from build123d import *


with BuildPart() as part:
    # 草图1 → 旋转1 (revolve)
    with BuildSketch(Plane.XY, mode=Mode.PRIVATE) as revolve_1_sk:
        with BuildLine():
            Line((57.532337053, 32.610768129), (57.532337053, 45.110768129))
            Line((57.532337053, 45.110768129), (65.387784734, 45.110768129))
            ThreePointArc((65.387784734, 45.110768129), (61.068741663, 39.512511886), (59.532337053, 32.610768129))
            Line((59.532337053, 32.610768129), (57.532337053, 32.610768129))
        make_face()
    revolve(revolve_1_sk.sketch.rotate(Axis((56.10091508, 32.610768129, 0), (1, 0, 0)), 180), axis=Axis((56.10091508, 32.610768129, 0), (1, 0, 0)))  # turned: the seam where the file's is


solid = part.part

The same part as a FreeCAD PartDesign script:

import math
import FreeCAD as App
import Part
import Sketcher

V = App.Vector

doc = App.newDocument("Part")
params = doc.addObject("Spreadsheet::Sheet", "Params")
for row, (alias, value) in enumerate([
    ("sketch1_width", "2 mm"),
    ("sketch1_radius", "16.27 mm"),
    ("sketch1_height", "12.5 mm"),
    ("revolution_angle", "360 deg"),
], start=1):
    params.set(f"A{row}", alias)
    params.set(f"B{row}", "=" + value)
    params.setAlias(f"B{row}", alias)

body = doc.addObject("PartDesign::Body", "Body")

# Sketch on XY plane
sketch1 = body.newObject("Sketcher::SketchObject", "Sketch")
sketch1.AttachmentSupport = (doc.getObject("XY_Plane"), [""])
sketch1.MapMode = "FlatFace"
sketch1.addGeometry(Part.LineSegment(V(57.532337, 45.110768, 0), V(57.532337, 32.610768, 0)), False)
sketch1.addGeometry(Part.LineSegment(V(57.532337, 32.610768, 0), V(59.532337, 32.610768, 0)), False)
sketch1.addGeometry(Part.ArcOfCircle(Part.Circle(V(75.802337, 32.610768, 0), V(0, 0, 1), 16.27), math.radians(129.799851), math.radians(180)), False)
sketch1.addGeometry(Part.LineSegment(V(65.387785, 45.110768, 0), V(57.532337, 45.110768, 0)), False)
sketch1.addGeometry(Part.LineSegment(V(57.532337, 32.610768, 0), V(75.802337, 32.610768, 0)), True)  # axis
sketch1.addConstraint(Sketcher.Constraint("Coincident", 0, 2, 1, 1))
sketch1.addConstraint(Sketcher.Constraint("Coincident", 1, 2, 2, 2))
sketch1.addConstraint(Sketcher.Constraint("Coincident", 2, 1, 3, 1))
sketch1.addConstraint(Sketcher.Constraint("Coincident", 3, 2, 0, 1))
sketch1.addConstraint(Sketcher.Constraint("Vertical", 0))
sketch1.addConstraint(Sketcher.Constraint("Horizontal", 1))
sketch1.addConstraint(Sketcher.Constraint("Horizontal", 3))
sketch1.addConstraint(Sketcher.Constraint("Horizontal", 4))
sketch1.addConstraint(Sketcher.Constraint("Coincident", 4, 1, 0, 2))
sketch1.addConstraint(Sketcher.Constraint("Coincident", 4, 2, 2, 3))
sketch1.addConstraint(Sketcher.Constraint("DistanceX", 1, 1, 1, 2, 2.0))
sketch1.addConstraint(Sketcher.Constraint("Radius", 2, 16.27))
sketch1.addConstraint(Sketcher.Constraint("DistanceY", 0, 2, 0, 1, 12.5))
sketch1.addConstraint(Sketcher.Constraint("DistanceY", -1, 1, 2, 3, 32.610768))
sketch1.addConstraint(Sketcher.Constraint("DistanceX", -1, 1, 2, 3, 75.802337))
sketch1.setExpression("Constraints[10]", "Params.sketch1_width")
sketch1.setExpression("Constraints[11]", "Params.sketch1_radius")
sketch1.setExpression("Constraints[12]", "Params.sketch1_height")
revolution = body.newObject("PartDesign::Revolution", "Revolution")
revolution.Profile = sketch1
revolution.ReferenceAxis = (sketch1, ["Axis0"])
revolution.setExpression("Angle", "Params.revolution_angle")

doc.recompute()
